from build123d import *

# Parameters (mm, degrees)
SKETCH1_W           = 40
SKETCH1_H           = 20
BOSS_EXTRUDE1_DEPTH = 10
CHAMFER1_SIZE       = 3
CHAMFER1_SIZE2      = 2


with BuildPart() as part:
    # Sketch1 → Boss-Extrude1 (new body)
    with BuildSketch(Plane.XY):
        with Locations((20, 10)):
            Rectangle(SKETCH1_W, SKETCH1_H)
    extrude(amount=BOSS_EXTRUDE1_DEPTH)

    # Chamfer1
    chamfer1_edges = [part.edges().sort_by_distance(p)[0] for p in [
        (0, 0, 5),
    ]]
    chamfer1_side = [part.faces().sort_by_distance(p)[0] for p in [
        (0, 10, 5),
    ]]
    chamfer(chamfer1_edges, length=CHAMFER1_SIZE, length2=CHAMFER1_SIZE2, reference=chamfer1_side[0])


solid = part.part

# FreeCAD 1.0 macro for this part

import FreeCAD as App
import Part
import Sketcher
Q = App.Units.Quantity


def edges_at(feature, points):
    """Names of the edges that pass closest to the given points."""
    edges = feature.Shape.Edges
    near = lambda p: min(range(len(edges)), key=lambda i: edges[i].distToShape(Part.Vertex(*p))[0])
    return sorted({f"Edge{near(p) + 1}" for p in points})


def add_polygon(sketch, points):
    """Adds a closed chain of lines whose ends are joined by coincident constraints."""
    first, n = sketch.GeometryCount, len(points)
    for a, b in zip(points, points[1:] + points[:1]):
        sketch.addGeometry(Part.LineSegment(App.Vector(*a, 0), App.Vector(*b, 0)), False)
    for i in range(n):
        sketch.addConstraint(Sketcher.Constraint("Coincident", first + i, 2, first + (i + 1) % n, 1))

doc = App.newDocument("Part")
params = doc.addObject("Spreadsheet::Sheet", "Params")
for row, (alias, value) in enumerate([
    ("sketch1_width", "40 mm"),
    ("sketch1_height", "20 mm"),
    ("pad1_length", "10 mm"),
    ("chamfer_size", "3 mm"),
    ("chamfer_size2", "2 mm"),
], start=1):
    params.set(f"A{row}", alias)
    params.set(f"B{row}", "=" + value)
    params.setAlias(f"B{row}", alias)

body = doc.addObject("PartDesign::Body", "Body")

# Sketch on XY plane
sketch1 = body.newObject("Sketcher::SketchObject", "Sketch")
sketch1.AttachmentSupport = (doc.getObject("XY_Plane"), [""])
sketch1.MapMode = "FlatFace"
add_polygon(sketch1, [(0, 20), (0, 0), (40, 0), (40, 20)])  # lines 0-3
sketch1.addConstraint(Sketcher.Constraint("Vertical", 0))
sketch1.addConstraint(Sketcher.Constraint("Horizontal", 1))
sketch1.addConstraint(Sketcher.Constraint("Vertical", 2))
sketch1.addConstraint(Sketcher.Constraint("Horizontal", 3))
sketch1.addConstraint(Sketcher.Constraint("Coincident", 0, 2, -1, 1))
sketch1.addConstraint(Sketcher.Constraint("DistanceX", 1, 1, 1, 2, Q("40 mm")))
sketch1.addConstraint(Sketcher.Constraint("DistanceY", 0, 2, 0, 1, Q("20 mm")))
sketch1.setExpression("Constraints[9]", "Params.sketch1_width")
sketch1.setExpression("Constraints[10]", "Params.sketch1_height")
pad1 = body.newObject("PartDesign::Pad", "Pad")
pad1.Profile = sketch1
pad1.setExpression("Length", "Params.pad1_length")
doc.recompute()

chamfer = body.newObject("PartDesign::Chamfer", "Chamfer")
chamfer.Base = (pad1, edges_at(pad1, [(0, 0, 5)]))
chamfer.ChamferType = "Two distances"
chamfer.setExpression("Size", "Params.chamfer_size")
chamfer.setExpression("Size2", "Params.chamfer_size2")

doc.recompute()
